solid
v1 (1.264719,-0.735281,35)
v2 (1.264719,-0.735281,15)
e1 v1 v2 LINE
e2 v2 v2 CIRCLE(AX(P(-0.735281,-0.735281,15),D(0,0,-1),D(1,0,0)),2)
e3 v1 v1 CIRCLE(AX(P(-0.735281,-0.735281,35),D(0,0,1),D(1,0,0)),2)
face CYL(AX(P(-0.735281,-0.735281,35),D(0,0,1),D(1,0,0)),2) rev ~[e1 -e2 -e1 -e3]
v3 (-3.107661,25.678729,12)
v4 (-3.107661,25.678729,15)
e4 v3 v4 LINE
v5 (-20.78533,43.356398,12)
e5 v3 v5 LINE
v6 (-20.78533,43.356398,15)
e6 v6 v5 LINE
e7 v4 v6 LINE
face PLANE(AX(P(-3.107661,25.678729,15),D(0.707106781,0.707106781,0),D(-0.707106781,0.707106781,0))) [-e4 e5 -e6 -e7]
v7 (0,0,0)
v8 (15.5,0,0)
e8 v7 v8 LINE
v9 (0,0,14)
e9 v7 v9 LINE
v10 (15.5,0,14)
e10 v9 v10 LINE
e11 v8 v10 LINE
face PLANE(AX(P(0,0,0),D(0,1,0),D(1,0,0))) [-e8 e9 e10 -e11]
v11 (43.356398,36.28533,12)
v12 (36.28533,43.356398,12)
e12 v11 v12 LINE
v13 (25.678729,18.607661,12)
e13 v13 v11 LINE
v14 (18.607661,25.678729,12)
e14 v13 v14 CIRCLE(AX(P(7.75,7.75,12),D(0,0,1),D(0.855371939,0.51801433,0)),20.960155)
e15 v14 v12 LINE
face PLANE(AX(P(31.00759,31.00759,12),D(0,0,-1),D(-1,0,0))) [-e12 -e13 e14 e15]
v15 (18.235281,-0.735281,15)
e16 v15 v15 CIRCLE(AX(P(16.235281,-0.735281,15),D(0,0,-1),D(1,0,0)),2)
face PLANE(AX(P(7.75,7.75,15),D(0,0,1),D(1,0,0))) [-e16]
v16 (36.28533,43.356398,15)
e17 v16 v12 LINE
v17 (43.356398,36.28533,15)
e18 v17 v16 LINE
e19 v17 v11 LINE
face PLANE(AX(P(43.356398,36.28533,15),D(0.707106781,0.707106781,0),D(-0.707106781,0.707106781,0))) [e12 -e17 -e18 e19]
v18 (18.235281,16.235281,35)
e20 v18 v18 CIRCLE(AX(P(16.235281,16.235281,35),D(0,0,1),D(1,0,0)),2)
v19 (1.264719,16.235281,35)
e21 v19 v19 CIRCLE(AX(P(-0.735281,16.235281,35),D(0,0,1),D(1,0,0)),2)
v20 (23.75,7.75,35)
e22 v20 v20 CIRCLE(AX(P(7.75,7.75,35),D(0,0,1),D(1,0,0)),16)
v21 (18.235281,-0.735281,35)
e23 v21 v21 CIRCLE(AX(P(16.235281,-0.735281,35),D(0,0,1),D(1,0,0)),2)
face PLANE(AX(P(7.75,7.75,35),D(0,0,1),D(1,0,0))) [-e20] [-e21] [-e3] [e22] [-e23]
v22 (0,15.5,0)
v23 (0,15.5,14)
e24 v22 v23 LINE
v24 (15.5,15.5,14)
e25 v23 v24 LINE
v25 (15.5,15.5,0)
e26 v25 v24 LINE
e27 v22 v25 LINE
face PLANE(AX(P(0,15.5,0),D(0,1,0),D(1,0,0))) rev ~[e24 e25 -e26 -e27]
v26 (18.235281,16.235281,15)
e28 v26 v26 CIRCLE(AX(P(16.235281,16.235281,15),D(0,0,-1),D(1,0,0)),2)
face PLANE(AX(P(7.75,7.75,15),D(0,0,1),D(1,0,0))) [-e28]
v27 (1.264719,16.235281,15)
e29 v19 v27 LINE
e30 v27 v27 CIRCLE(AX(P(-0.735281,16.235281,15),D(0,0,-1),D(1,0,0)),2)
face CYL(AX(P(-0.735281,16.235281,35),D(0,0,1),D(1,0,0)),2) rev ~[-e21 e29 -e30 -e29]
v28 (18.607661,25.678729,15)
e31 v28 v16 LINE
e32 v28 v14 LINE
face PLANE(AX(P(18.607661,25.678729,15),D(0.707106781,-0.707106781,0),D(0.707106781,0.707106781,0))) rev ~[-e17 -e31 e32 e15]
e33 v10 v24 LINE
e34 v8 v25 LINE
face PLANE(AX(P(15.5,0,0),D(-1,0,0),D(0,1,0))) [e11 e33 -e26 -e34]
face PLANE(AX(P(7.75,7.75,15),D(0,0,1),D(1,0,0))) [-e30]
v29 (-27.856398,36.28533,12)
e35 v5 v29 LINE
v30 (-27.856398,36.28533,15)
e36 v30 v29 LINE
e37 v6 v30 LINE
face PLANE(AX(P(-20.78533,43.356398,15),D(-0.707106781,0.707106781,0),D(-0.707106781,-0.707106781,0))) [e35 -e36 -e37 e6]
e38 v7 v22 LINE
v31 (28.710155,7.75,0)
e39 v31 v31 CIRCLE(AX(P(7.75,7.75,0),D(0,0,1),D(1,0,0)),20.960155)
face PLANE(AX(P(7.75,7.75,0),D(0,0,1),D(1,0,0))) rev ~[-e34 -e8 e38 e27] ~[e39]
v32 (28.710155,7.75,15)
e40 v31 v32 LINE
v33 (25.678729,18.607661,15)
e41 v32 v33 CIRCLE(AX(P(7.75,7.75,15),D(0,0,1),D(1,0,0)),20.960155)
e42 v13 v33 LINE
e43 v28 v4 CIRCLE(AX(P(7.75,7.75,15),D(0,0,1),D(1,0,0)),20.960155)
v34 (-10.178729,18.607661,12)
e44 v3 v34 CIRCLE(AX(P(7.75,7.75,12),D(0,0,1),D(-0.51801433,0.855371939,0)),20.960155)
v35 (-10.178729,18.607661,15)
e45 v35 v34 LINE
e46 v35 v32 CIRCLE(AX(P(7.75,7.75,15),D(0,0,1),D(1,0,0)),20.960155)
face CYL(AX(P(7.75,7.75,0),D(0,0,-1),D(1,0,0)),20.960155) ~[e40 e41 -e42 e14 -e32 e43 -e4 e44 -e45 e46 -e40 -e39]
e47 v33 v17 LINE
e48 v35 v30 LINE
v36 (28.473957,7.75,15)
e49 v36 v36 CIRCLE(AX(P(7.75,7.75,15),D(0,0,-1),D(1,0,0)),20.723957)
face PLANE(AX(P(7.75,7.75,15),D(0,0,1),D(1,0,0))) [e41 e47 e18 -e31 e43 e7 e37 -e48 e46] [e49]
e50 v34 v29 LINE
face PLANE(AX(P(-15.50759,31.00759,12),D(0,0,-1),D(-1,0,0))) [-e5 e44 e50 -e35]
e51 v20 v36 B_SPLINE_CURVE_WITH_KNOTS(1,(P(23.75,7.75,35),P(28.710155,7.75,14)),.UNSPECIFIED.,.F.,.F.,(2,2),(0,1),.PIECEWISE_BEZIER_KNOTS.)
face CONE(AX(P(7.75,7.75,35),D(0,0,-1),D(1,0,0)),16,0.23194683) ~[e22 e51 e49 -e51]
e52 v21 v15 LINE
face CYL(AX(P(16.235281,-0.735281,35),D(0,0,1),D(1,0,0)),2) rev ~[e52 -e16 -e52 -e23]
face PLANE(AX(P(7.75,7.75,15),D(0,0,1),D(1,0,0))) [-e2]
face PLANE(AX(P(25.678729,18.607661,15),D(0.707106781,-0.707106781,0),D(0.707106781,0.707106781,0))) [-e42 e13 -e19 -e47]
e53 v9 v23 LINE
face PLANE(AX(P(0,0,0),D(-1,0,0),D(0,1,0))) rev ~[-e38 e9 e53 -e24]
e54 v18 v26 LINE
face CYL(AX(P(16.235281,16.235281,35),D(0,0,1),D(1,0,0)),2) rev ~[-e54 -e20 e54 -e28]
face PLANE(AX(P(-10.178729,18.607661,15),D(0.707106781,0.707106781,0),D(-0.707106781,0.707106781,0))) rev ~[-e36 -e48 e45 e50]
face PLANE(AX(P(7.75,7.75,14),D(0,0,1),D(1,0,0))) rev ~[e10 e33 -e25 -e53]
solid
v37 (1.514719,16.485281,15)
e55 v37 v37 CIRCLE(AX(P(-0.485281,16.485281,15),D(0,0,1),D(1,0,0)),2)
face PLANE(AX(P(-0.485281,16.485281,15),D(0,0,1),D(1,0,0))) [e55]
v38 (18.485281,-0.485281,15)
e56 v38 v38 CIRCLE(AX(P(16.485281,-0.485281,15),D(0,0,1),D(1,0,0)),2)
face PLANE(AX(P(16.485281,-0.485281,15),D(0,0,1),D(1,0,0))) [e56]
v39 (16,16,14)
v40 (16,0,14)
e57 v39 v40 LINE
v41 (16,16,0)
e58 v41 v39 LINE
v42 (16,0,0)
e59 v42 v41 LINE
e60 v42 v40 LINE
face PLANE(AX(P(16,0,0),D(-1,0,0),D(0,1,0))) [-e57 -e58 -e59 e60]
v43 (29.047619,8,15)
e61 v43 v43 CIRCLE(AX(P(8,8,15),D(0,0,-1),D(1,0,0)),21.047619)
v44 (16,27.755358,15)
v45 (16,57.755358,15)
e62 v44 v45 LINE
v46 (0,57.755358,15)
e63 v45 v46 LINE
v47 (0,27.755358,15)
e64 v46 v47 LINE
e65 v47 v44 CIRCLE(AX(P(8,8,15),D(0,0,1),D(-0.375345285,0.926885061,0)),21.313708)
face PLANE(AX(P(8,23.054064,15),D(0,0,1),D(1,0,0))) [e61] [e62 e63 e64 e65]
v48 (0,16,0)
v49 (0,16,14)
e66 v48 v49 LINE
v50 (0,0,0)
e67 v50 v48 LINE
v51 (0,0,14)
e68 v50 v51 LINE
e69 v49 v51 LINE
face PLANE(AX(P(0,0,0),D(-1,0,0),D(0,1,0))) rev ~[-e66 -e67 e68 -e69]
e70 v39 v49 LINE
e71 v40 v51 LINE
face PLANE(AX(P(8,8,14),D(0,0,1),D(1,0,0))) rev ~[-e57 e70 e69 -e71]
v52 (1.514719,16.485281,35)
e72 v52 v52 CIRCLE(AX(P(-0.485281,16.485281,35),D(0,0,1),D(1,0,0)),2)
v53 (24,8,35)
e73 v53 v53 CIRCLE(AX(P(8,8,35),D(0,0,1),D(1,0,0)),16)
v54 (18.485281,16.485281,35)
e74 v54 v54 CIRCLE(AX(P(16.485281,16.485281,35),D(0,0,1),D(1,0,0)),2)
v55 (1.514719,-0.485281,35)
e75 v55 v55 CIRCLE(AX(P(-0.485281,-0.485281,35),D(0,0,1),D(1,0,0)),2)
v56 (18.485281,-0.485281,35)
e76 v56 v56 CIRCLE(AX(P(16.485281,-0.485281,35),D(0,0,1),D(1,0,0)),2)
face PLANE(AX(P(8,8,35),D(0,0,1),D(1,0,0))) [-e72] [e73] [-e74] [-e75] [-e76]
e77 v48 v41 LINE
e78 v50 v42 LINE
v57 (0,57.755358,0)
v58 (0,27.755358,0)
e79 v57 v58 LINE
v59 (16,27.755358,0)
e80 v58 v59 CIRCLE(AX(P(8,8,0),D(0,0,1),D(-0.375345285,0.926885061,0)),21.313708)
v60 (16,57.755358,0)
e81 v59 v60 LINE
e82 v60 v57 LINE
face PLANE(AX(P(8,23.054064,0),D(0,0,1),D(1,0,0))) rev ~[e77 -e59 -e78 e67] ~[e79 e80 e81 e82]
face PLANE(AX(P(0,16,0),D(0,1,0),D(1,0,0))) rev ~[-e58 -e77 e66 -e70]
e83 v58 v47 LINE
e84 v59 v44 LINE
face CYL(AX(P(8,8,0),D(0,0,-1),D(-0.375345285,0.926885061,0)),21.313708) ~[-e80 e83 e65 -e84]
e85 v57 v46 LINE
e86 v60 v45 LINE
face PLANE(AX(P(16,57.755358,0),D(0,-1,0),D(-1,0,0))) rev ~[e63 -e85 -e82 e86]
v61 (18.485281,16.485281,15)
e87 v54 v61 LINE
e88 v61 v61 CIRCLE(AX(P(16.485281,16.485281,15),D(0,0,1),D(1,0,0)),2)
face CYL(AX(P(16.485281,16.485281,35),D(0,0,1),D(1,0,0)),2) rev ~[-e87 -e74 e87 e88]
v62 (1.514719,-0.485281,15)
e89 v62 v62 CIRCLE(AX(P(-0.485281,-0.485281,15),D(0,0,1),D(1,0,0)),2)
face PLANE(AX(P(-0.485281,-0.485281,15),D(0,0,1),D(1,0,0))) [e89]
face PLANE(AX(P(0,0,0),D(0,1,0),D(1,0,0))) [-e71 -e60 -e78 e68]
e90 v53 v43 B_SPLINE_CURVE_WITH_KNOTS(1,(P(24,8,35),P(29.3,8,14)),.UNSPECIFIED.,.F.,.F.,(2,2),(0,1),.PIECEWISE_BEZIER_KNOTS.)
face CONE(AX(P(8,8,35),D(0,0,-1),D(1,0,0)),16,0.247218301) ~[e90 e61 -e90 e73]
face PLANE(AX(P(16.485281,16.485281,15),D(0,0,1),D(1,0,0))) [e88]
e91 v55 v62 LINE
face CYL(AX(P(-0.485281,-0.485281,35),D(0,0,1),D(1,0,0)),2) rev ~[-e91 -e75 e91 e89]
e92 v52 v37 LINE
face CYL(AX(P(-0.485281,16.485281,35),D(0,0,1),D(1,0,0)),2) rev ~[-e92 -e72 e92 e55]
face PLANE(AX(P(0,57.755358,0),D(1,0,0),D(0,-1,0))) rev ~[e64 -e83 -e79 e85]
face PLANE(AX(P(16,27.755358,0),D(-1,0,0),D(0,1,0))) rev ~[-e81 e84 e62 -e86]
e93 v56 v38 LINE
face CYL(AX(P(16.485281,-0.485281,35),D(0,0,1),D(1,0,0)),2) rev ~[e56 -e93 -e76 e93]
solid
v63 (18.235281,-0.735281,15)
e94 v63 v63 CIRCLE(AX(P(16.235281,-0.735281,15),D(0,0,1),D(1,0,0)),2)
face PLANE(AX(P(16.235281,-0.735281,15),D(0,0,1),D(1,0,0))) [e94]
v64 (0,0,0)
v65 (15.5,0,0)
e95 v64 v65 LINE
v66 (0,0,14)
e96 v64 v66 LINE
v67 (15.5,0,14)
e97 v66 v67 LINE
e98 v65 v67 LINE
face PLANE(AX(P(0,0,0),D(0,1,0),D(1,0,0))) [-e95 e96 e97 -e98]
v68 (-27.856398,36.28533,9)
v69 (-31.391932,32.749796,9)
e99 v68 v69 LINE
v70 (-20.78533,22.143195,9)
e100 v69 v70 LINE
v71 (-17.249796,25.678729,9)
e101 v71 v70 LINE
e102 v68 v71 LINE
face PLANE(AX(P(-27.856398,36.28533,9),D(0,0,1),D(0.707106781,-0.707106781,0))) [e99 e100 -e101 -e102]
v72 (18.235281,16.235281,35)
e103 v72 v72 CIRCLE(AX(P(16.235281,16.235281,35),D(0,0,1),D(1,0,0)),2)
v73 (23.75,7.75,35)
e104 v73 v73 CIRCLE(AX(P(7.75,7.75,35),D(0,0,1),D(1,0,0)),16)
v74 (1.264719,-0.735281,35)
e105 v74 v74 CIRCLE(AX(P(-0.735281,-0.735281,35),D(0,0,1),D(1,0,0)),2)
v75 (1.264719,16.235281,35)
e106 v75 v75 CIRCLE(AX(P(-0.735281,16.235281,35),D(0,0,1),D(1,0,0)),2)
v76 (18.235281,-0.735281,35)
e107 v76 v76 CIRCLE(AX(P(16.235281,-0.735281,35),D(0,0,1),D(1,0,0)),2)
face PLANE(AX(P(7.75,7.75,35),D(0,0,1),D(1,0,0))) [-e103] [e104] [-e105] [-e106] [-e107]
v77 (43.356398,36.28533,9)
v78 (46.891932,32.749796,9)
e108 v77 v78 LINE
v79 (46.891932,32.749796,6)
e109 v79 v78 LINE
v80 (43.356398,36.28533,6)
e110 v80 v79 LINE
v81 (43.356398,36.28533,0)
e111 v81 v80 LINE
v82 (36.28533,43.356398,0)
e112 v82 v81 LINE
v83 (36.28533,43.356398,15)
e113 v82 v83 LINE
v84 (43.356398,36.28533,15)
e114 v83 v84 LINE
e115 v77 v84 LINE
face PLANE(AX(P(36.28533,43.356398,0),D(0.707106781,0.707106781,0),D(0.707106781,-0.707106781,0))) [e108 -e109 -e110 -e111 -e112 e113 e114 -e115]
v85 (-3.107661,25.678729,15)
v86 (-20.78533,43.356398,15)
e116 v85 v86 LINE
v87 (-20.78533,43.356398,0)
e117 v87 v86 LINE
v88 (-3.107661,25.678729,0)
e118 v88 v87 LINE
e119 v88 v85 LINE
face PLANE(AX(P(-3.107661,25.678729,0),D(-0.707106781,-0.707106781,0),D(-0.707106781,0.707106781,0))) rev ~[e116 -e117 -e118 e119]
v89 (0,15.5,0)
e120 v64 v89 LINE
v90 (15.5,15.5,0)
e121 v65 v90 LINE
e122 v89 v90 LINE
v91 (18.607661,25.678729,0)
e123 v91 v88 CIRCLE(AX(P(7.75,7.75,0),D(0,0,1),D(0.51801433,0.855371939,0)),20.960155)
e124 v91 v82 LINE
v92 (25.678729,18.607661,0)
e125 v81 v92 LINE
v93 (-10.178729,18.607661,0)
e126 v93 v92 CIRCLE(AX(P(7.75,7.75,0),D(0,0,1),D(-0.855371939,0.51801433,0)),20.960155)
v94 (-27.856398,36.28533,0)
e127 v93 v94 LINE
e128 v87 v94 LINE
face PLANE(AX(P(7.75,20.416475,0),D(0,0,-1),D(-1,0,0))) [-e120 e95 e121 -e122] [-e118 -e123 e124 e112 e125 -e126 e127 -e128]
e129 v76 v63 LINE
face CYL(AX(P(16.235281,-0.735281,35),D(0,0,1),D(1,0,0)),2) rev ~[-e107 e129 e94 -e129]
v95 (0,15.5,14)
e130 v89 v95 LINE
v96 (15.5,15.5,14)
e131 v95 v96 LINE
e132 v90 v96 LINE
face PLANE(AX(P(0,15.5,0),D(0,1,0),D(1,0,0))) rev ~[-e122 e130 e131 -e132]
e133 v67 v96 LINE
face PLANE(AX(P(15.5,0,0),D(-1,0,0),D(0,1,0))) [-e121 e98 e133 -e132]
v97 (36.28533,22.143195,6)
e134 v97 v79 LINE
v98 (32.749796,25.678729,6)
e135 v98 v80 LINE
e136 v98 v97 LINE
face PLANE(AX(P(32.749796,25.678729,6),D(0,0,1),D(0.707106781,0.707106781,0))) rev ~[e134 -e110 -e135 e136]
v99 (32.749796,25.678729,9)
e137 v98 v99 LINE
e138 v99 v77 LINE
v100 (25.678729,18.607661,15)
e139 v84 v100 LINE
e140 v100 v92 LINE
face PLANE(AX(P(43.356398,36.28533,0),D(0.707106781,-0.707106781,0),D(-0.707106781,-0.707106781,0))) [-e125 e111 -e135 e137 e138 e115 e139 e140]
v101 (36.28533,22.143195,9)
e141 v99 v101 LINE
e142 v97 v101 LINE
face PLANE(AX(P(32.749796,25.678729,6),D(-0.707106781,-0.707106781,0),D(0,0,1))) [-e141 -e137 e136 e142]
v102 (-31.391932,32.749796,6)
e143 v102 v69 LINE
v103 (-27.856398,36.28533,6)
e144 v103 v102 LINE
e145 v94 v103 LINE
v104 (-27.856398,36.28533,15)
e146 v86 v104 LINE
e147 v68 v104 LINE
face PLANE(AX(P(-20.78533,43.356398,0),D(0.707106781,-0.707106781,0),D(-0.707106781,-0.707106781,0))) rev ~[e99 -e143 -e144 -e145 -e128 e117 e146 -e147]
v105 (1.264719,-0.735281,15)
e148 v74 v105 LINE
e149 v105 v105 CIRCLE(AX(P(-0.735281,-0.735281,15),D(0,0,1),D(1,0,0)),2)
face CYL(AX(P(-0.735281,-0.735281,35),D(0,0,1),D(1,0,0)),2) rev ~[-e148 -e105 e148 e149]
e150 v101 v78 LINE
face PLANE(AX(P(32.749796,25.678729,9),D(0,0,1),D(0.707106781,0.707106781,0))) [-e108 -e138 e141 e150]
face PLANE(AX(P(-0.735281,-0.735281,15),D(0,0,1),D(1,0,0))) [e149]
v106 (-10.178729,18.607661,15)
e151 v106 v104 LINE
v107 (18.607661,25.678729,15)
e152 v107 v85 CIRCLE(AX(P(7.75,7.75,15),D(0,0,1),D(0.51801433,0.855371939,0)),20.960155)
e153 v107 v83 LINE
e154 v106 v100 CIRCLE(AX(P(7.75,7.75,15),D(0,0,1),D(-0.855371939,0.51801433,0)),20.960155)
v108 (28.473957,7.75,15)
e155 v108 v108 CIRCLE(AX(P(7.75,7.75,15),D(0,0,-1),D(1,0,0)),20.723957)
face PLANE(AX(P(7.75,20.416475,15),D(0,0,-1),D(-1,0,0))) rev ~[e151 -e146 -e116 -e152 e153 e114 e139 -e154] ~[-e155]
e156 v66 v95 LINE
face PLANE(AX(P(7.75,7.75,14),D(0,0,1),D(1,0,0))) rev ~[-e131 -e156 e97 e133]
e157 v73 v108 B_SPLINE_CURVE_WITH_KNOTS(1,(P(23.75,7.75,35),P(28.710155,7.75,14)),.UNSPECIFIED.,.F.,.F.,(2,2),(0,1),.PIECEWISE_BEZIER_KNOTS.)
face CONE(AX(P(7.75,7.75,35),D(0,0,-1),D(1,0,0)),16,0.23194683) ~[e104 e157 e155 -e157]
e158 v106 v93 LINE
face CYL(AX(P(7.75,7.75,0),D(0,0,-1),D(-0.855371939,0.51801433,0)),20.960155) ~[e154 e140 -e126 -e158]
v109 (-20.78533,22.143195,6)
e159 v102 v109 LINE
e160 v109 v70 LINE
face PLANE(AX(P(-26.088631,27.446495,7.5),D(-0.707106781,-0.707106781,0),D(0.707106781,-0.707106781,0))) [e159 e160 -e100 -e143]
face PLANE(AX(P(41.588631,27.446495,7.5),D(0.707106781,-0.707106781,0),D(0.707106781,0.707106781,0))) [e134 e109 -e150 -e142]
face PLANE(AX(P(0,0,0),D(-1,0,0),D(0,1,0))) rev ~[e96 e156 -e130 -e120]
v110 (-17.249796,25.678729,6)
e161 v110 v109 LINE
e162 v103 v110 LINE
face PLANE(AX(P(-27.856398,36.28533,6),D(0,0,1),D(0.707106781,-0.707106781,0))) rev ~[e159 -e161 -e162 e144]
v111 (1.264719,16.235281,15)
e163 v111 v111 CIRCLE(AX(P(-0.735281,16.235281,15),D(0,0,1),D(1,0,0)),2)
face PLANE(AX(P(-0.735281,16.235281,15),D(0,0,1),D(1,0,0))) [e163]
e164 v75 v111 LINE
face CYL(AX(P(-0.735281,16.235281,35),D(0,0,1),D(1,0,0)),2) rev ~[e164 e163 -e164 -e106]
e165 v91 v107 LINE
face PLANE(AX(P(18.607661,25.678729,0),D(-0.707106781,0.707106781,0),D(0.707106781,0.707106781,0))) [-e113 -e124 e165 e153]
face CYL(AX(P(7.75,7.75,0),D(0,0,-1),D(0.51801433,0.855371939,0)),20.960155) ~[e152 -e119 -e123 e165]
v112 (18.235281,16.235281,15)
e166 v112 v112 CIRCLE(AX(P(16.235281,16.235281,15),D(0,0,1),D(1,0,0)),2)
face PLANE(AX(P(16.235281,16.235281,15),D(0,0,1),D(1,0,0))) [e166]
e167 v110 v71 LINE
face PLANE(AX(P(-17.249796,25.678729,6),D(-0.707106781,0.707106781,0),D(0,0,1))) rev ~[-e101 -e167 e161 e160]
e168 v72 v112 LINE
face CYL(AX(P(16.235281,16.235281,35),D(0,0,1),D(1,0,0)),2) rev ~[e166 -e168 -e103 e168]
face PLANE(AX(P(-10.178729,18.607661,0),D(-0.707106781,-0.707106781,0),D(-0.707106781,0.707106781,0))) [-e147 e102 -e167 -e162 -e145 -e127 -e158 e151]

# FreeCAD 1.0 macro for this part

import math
import FreeCAD as App
import Part
import Sketcher

V = App.Vector

doc = App.newDocument("Part")
params = doc.addObject("Spreadsheet::Sheet", "Params")
for row, (alias, value) in enumerate([
    ("sketch1_diameter", "4 mm"),
    ("pad1_length", "20 mm"),
    ("sketch2_width", "16 mm"),
    ("sketch2_height", "30 mm"),
    ("pad2_length", "15 mm"),
    ("sketch3_diameter", "32 mm"),
    ("sketch4_diameter", "42.6 mm"),
    ("sketch5_width", "15 mm"),
    ("sketch5_height", "3 mm"),
    ("pad3_length", "5 mm"),
    ("sketch6_width", "15 mm"),
    ("sketch6_height", "3 mm"),
    ("pad4_length", "5 mm"),
    ("sketch7_diameter", "4 mm"),
    ("pad5_length", "20 mm"),
    ("sketch8_diameter", "32 mm"),
    ("sketch10_length", "10 mm"),
    ("sketch10_length2", "25 mm"),
    ("sketch10_width", "15.5 mm"),
    ("pad6_length", "15 mm"),
    ("sketch11_length", "25 mm"),
    ("sketch11_length2", "10 mm"),
    ("pad7_length", "3 mm"),
    ("sketch12_diameter", "4 mm"),
    ("pad8_length", "20 mm"),
    ("sketch13_diameter", "32 mm"),
    ("sketch15_width", "15.5 mm"),
    ("pad9_length", "15 mm"),
], start=1):
    params.set(f"A{row}", alias)
    params.set(f"B{row}", "=" + value)
    params.setAlias(f"B{row}", alias)

body = doc.addObject("PartDesign::Body", "Body")
body.AllowCompound = True

# Sketch on XY plane
sketch1 = body.newObject("Sketcher::SketchObject", "Sketch")
sketch1.AttachmentSupport = (doc.getObject("XY_Plane"), [""])
sketch1.MapMode = "FlatFace"
sketch1.AttachmentOffset = App.Placement(V(0, 0, 35), App.Rotation())
sketch1.addGeometry([
    Part.Circle(V(16.5, 16.5, 0), V(0, 0, 1), 2),
    Part.Circle(V(-0.5, 16.5, 0), V(0, 0, 1), 2),
    Part.Circle(V(-0.5, -0.5, 0), V(0, 0, 1), 2),
    Part.Circle(V(16.5, -0.5, 0), V(0, 0, 1), 2),
], False)
sketch1.addConstraint([
    Sketcher.Constraint("Equal", 0, 1),
    Sketcher.Constraint("Equal", 1, 2),
    Sketcher.Constraint("Equal", 2, 3),
    Sketcher.Constraint("Horizontal", 0, 3, 1, 3),
    Sketcher.Constraint("Horizontal", 2, 3, 3, 3),
    Sketcher.Constraint("Vertical", 1, 3, 2, 3),
    Sketcher.Constraint("Vertical", 0, 3, 3, 3),
    Sketcher.Constraint("Diameter", 0, 4.0),
    Sketcher.Constraint("DistanceX", -1, 1, 0, 3, 16.485281),
    Sketcher.Constraint("DistanceY", -1, 1, 0, 3, 16.485281),
    Sketcher.Constraint("DistanceX", 1, 3, -1, 1, 0.485281),
    Sketcher.Constraint("DistanceY", 2, 3, -1, 1, 0.485281),
])
sketch1.setExpression("Constraints[7]", "Params.sketch1_diameter")
pad1 = body.newObject("PartDesign::Pad", "Pad")
pad1.Profile = sketch1
pad1.setExpression("Length", "Params.pad1_length")
pad1.Reversed = True
body2 = doc.addObject("PartDesign::Body", "Body001")

# Sketch on XY plane
sketch2 = body2.newObject("Sketcher::SketchObject", "Sketch001")
sketch2.AttachmentSupport = (doc.getObject("XY_Plane001"), [""])
sketch2.MapMode = "FlatFace"
sketch2.addGeometry([
    Part.ArcOfCircle(Part.Circle(V(8, 8, 0), V(0, 0, 1), 21), math.radians(112), math.radians(428)),  # 0
    Part.LineSegment(V(16, 28, 0), V(16, 58, 0)),  # 1
    Part.LineSegment(V(16, 58, 0), V(0, 58, 0)),  # 2
    Part.LineSegment(V(0, 58, 0), V(0, 28, 0)),  # 3
    Part.LineSegment(V(16, 0, 0), V(0, 0, 0)),  # 4
    Part.LineSegment(V(0, 0, 0), V(0, 16, 0)),  # 5
    Part.LineSegment(V(0, 16, 0), V(16, 16, 0)),  # 6
    Part.LineSegment(V(16, 16, 0), V(16, 0, 0)),  # 7
], False)
sketch2.addConstraint([
    Sketcher.Constraint("Coincident", 0, 2, 1, 1),
    Sketcher.Constraint("Coincident", 1, 2, 2, 1),
    Sketcher.Constraint("Coincident", 2, 2, 3, 1),
    Sketcher.Constraint("Coincident", 3, 2, 0, 1),
    Sketcher.Constraint("Coincident", 4, 2, 5, 1),
    Sketcher.Constraint("Coincident", 5, 2, 6, 1),
    Sketcher.Constraint("Coincident", 6, 2, 7, 1),
    Sketcher.Constraint("Coincident", 7, 2, 4, 1),
    Sketcher.Constraint("Vertical", 1),
    Sketcher.Constraint("Horizontal", 2),
    Sketcher.Constraint("Vertical", 3),
    Sketcher.Constraint("Horizontal", 4),
    Sketcher.Constraint("Vertical", 5),
    Sketcher.Constraint("Horizontal", 6),
    Sketcher.Constraint("Vertical", 7),
    Sketcher.Constraint("Coincident", 4, 2, -1, 1),
    Sketcher.Constraint("PointOnObject", 2, 2, -2),
    Sketcher.Constraint("Horizontal", 0, 2, 3, 2),
    Sketcher.Constraint("Vertical", 1, 2, 6, 2),
    Sketcher.Constraint("Equal", 6, 5),
    Sketcher.Constraint("DistanceX", 2, 2, 2, 1, 16.0),
    Sketcher.Constraint("DistanceY", 1, 1, 1, 2, 30.0),
    Sketcher.Constraint("DistanceY", -1, 1, 0, 3, 8.0),
    Sketcher.Constraint("Radius", 0, 21.313708),
])
sketch2.setExpression("Constraints[20]", "Params.sketch2_width")
sketch2.setExpression("Constraints[21]", "Params.sketch2_height")
pad2 = body2.newObject("PartDesign::Pad", "Pad001")
pad2.Profile = sketch2
pad2.setExpression("Length", "Params.pad2_length")
body3 = doc.addObject("PartDesign::Body", "Body002")

# Sketch on XY plane
sketch3 = body3.newObject("Sketcher::SketchObject", "Sketch002")
sketch3.AttachmentSupport = (doc.getObject("XY_Plane002"), [""])
sketch3.MapMode = "FlatFace"
sketch3.AttachmentOffset = App.Placement(V(0, 0, 35), App.Rotation())
sketch3.addGeometry(Part.Circle(V(8, 8, 0), V(0, 0, 1), 16), False)
sketch3.addConstraint([
    Sketcher.Constraint("Diameter", 0, 32.0),
    Sketcher.Constraint("DistanceX", -1, 1, 0, 3, 8.0),
    Sketcher.Constraint("DistanceY", -1, 1, 0, 3, 8.0),
])
sketch3.setExpression("Constraints[0]", "Params.sketch3_diameter")

# Sketch on XY plane
sketch4 = body3.newObject("Sketcher::SketchObject", "Sketch003")
sketch4.AttachmentSupport = (doc.getObject("XY_Plane002"), [""])
sketch4.MapMode = "FlatFace"
sketch4.AttachmentOffset = App.Placement(V(0, 0, 14), App.Rotation())
sketch4.addGeometry(Part.Circle(V(8, 8, 0), V(0, 0, 1), 21), False)
sketch4.addConstraint([
    Sketcher.Constraint("Diameter", 0, 42.6),
    Sketcher.Constraint("DistanceX", -1, 1, 0, 3, 8.0),
    Sketcher.Constraint("DistanceY", -1, 1, 0, 3, 8.0),
])
sketch4.setExpression("Constraints[0]", "Params.sketch4_diameter")

additiveloft = body3.newObject("PartDesign::AdditiveLoft", "AdditiveLoft")
additiveloft.Profile = sketch3
additiveloft.Sections = [sketch4]
doc.recompute()

boolean = body3.newObject("PartDesign::Boolean", "Boolean")
boolean.Type = "Fuse"
boolean.addObjects([body2])
doc.recompute()

boolean2 = body3.newObject("PartDesign::Boolean", "Boolean001")
boolean2.Type = "Cut"
boolean2.addObjects([body])
body4 = doc.addObject("PartDesign::Body", "Body003")

# Sketch on XY plane
sketch5 = body4.newObject("Sketcher::SketchObject", "Sketch004")
sketch5.AttachmentSupport = (doc.getObject("XY_Plane003"), [""])
sketch5.MapMode = "FlatFace"
sketch5.addGeometry([
    Part.LineSegment(V(41.3, 9, 0), V(41.3, 6, 0)),
    Part.LineSegment(V(41.3, 6, 0), V(56.3, 6, 0)),
    Part.LineSegment(V(56.3, 6, 0), V(56.3, 9, 0)),
    Part.LineSegment(V(56.3, 9, 0), V(41.3, 9, 0)),
], False)
sketch5.addConstraint([
    Sketcher.Constraint("Coincident", 0, 2, 1, 1),
    Sketcher.Constraint("Coincident", 1, 2, 2, 1),
    Sketcher.Constraint("Coincident", 2, 2, 3, 1),
    Sketcher.Constraint("Coincident", 3, 2, 0, 1),
    Sketcher.Constraint("Vertical", 0),
    Sketcher.Constraint("Horizontal", 1),
    Sketcher.Constraint("Vertical", 2),
    Sketcher.Constraint("Horizontal", 3),
    Sketcher.Constraint("DistanceX", 1, 1, 1, 2, 15.0),
    Sketcher.Constraint("DistanceY", 0, 2, 0, 1, 3.0),
    Sketcher.Constraint("DistanceY", -1, 1, 0, 2, 6.0),
    Sketcher.Constraint("DistanceX", -1, 1, 0, 2, 41.315206),
])
sketch5.setExpression("Constraints[8]", "Params.sketch5_width")
sketch5.setExpression("Constraints[9]", "Params.sketch5_height")
pad3 = body4.newObject("PartDesign::Pad", "Pad002")
pad3.Profile = sketch5
pad3.setExpression("Length", "Params.pad3_length")
body5 = doc.addObject("PartDesign::Body", "Body004")
doc.recompute()

body4.Placement = App.Placement(V(0, 0, 0), App.Rotation(V(1, 0, 0), 90))
boolean3 = body5.newObject("PartDesign::Boolean", "Boolean002")
boolean3.Type = "Fuse"
boolean3.addObjects([body4])
body6 = doc.addObject("PartDesign::Body", "Body005")
doc.recompute()

body5.Placement = App.Placement(V(3.535534, -3.535534, 0), App.Rotation(V(0, 0, 1), 45))
boolean4 = body6.newObject("PartDesign::Boolean", "Boolean003")
boolean4.Type = "Fuse"
boolean4.addObjects([body5])
body7 = doc.addObject("PartDesign::Body", "Body006")

# Sketch on XY plane
sketch6 = body7.newObject("Sketcher::SketchObject", "Sketch005")
sketch6.AttachmentSupport = (doc.getObject("XY_Plane006"), [""])
sketch6.MapMode = "FlatFace"
sketch6.addGeometry([
    Part.LineSegment(V(-45.4, 9, 0), V(-45.4, 6, 0)),
    Part.LineSegment(V(-45.4, 6, 0), V(-30.4, 6, 0)),
    Part.LineSegment(V(-30.4, 6, 0), V(-30.4, 9, 0)),
    Part.LineSegment(V(-30.4, 9, 0), V(-45.4, 9, 0)),
], False)
sketch6.addConstraint([
    Sketcher.Constraint("Coincident", 0, 2, 1, 1),
    Sketcher.Constraint("Coincident", 1, 2, 2, 1),
    Sketcher.Constraint("Coincident", 2, 2, 3, 1),
    Sketcher.Constraint("Coincident", 3, 2, 0, 1),
    Sketcher.Constraint("Vertical", 0),
    Sketcher.Constraint("Horizontal", 1),
    Sketcher.Constraint("Vertical", 2),
    Sketcher.Constraint("Horizontal", 3),
    Sketcher.Constraint("DistanceX", 1, 1, 1, 2, 15.0),
    Sketcher.Constraint("DistanceY", 0, 2, 0, 1, 3.0),
    Sketcher.Constraint("DistanceY", -1, 1, 0, 2, 6.0),
    Sketcher.Constraint("DistanceX", 0, 2, -1, 1, 45.355051),
])
sketch6.setExpression("Constraints[8]", "Params.sketch6_width")
sketch6.setExpression("Constraints[9]", "Params.sketch6_height")
pad4 = body7.newObject("PartDesign::Pad", "Pad003")
pad4.Profile = sketch6
pad4.setExpression("Length", "Params.pad4_length")
body8 = doc.addObject("PartDesign::Body", "Body007")
doc.recompute()

body7.Placement = App.Placement(V(0, 0, 0), App.Rotation(V(1, 0, 0), 90))
boolean5 = body8.newObject("PartDesign::Boolean", "Boolean004")
boolean5.Type = "Fuse"
boolean5.addObjects([body7])
body9 = doc.addObject("PartDesign::Body", "Body008")
doc.recompute()

body8.Placement = App.Placement(V(4.214466, 4.214466, 0), App.Rotation(V(0, 0, 1), 315))
boolean6 = body9.newObject("PartDesign::Boolean", "Boolean005")
boolean6.Type = "Fuse"
boolean6.addObjects([body8])
body10 = doc.addObject("PartDesign::Body", "Body009")
body10.AllowCompound = True

# Sketch on XY plane
sketch7 = body10.newObject("Sketcher::SketchObject", "Sketch006")
sketch7.AttachmentSupport = (doc.getObject("XY_Plane009"), [""])
sketch7.MapMode = "FlatFace"
sketch7.AttachmentOffset = App.Placement(V(0, 0, 35), App.Rotation())
sketch7.addGeometry([
    Part.Circle(V(16.2, 16.2, 0), V(0, 0, 1), 2),
    Part.Circle(V(-0.7, 16.2, 0), V(0, 0, 1), 2),
    Part.Circle(V(-0.7, -0.7, 0), V(0, 0, 1), 2),
    Part.Circle(V(16.2, -0.7, 0), V(0, 0, 1), 2),
], False)
sketch7.addConstraint([
    Sketcher.Constraint("Equal", 0, 1),
    Sketcher.Constraint("Equal", 1, 2),
    Sketcher.Constraint("Equal", 2, 3),
    Sketcher.Constraint("Horizontal", 0, 3, 1, 3),
    Sketcher.Constraint("Horizontal", 2, 3, 3, 3),
    Sketcher.Constraint("Vertical", 1, 3, 2, 3),
    Sketcher.Constraint("Vertical", 0, 3, 3, 3),
    Sketcher.Constraint("Diameter", 0, 4.0),
    Sketcher.Constraint("DistanceX", -1, 1, 0, 3, 16.235281),
    Sketcher.Constraint("DistanceY", -1, 1, 0, 3, 16.235281),
    Sketcher.Constraint("DistanceX", 1, 3, -1, 1, 0.735281),
    Sketcher.Constraint("DistanceY", 2, 3, -1, 1, 0.735281),
])
sketch7.setExpression("Constraints[7]", "Params.sketch7_diameter")
pad5 = body10.newObject("PartDesign::Pad", "Pad004")
pad5.Profile = sketch7
pad5.setExpression("Length", "Params.pad5_length")
pad5.Reversed = True
body11 = doc.addObject("PartDesign::Body", "Body010")

# Sketch on XY plane
sketch8 = body11.newObject("Sketcher::SketchObject", "Sketch007")
sketch8.AttachmentSupport = (doc.getObject("XY_Plane010"), [""])
sketch8.MapMode = "FlatFace"
sketch8.AttachmentOffset = App.Placement(V(0, 0, 35), App.Rotation())
sketch8.addGeometry(Part.Circle(V(8, 8, 0), V(0, 0, 1), 16), False)
sketch8.addConstraint([
    Sketcher.Constraint("Diameter", 0, 32.0),
    Sketcher.Constraint("DistanceX", -1, 1, 0, 3, 7.75),
    Sketcher.Constraint("DistanceY", -1, 1, 0, 3, 7.75),
])
sketch8.setExpression("Constraints[0]", "Params.sketch8_diameter")

# Sketch on XY plane
sketch9 = body11.newObject("Sketcher::SketchObject", "Sketch008")
sketch9.AttachmentSupport = (doc.getObject("XY_Plane010"), [""])
sketch9.MapMode = "FlatFace"
sketch9.AttachmentOffset = App.Placement(V(0, 0, 14), App.Rotation())
sketch9.addGeometry(Part.Circle(V(8, 8, 0), V(0, 0, 1), 21), False)
sketch9.addConstraint([
    Sketcher.Constraint("Diameter", 0, 41.92031),
    Sketcher.Constraint("DistanceX", -1, 1, 0, 3, 7.75),
    Sketcher.Constraint("DistanceY", -1, 1, 0, 3, 7.75),
])

additiveloft2 = body11.newObject("PartDesign::AdditiveLoft", "AdditiveLoft001")
additiveloft2.Profile = sketch8
additiveloft2.Sections = [sketch9]
body12 = doc.addObject("PartDesign::Body", "Body011")

# Sketch on XY plane
sketch10 = body12.newObject("Sketcher::SketchObject", "Sketch009")
sketch10.AttachmentSupport = (doc.getObject("XY_Plane011"), [""])
sketch10.MapMode = "FlatFace"
sketch10.addGeometry([
    Part.LineSegment(V(43, 36, 0), V(36, 43, 0)),  # 0
    Part.LineSegment(V(36, 43, 0), V(19, 26, 0)),  # 1
    Part.ArcOfCircle(Part.Circle(V(8, 8, 0), V(0, 0, 1), 21), math.radians(59), math.radians(121)),  # 2
    Part.LineSegment(V(-3, 26, 0), V(-21, 43, 0)),  # 3
    Part.LineSegment(V(-21, 43, 0), V(-28, 36, 0)),  # 4
    Part.LineSegment(V(-28, 36, 0), V(-10, 19, 0)),  # 5
    Part.ArcOfCircle(Part.Circle(V(8, 8, 0), V(0, 0, 1), 21), math.radians(149), math.radians(391)),  # 6
    Part.LineSegment(V(26, 19, 0), V(43, 36, 0)),  # 7
    Part.LineSegment(V(0, 0, 0), V(0, 16, 0)),  # 8
    Part.LineSegment(V(0, 16, 0), V(16, 16, 0)),  # 9
    Part.LineSegment(V(16, 16, 0), V(16, 0, 0)),  # 10
    Part.LineSegment(V(16, 0, 0), V(0, 0, 0)),  # 11
], False)
sketch10.addConstraint([
    Sketcher.Constraint("Coincident", 0, 2, 1, 1),
    Sketcher.Constraint("Coincident", 1, 2, 2, 1),
    Sketcher.Constraint("Coincident", 2, 2, 3, 1),
    Sketcher.Constraint("Coincident", 3, 2, 4, 1),
    Sketcher.Constraint("Coincident", 4, 2, 5, 1),
    Sketcher.Constraint("Coincident", 5, 2, 6, 1),
    Sketcher.Constraint("Coincident", 6, 2, 7, 1),
    Sketcher.Constraint("Coincident", 7, 2, 0, 1),
    Sketcher.Constraint("Coincident", 8, 2, 9, 1),
    Sketcher.Constraint("Coincident", 9, 2, 10, 1),
    Sketcher.Constraint("Coincident", 10, 2, 11, 1),
    Sketcher.Constraint("Coincident", 11, 2, 8, 1),
    Sketcher.Constraint("Vertical", 8),
    Sketcher.Constraint("Horizontal", 9),
    Sketcher.Constraint("Vertical", 10),
    Sketcher.Constraint("Horizontal", 11),
    Sketcher.Constraint("Coincident", 11, 2, -1, 1),
    Sketcher.Constraint("Coincident", 6, 3, 2, 3),
    Sketcher.Constraint("Equal", 2, 6),
    Sketcher.Constraint("Perpendicular", 0, 1),
    Sketcher.Constraint("Perpendicular", 1, 3),
    Sketcher.Constraint("Perpendicular", 3, 4),
    Sketcher.Constraint("Perpendicular", 4, 5),
    Sketcher.Constraint("Perpendicular", 5, 7),
    Sketcher.Constraint("Horizontal", 1, 2, 2, 2),
    Sketcher.Constraint("Horizontal", 0, 2, 3, 2),
    Sketcher.Constraint("Horizontal", 5, 2, 6, 2),
    Sketcher.Constraint("Horizontal", 4, 2, 7, 2),
    Sketcher.Constraint("Equal", 11, 8),
    Sketcher.Constraint("Equal", 3, 5),
    Sketcher.Constraint("Distance", 0, 10.0),
    Sketcher.Constraint("Distance", 1, 25.0),
    Sketcher.Constraint("DistanceX", 9, 1, 9, 2, 15.5),
    Sketcher.Constraint("DistanceX", -1, 1, 2, 3, 7.75),
    Sketcher.Constraint("DistanceY", -1, 1, 2, 3, 7.75),
    Sketcher.Constraint("Radius", 2, 20.960155),
])
sketch10.setExpression("Constraints[30]", "Params.sketch10_length")
sketch10.setExpression("Constraints[31]", "Params.sketch10_length2")
sketch10.setExpression("Constraints[32]", "Params.sketch10_width")
pad6 = body12.newObject("PartDesign::Pad", "Pad005")
pad6.Profile = sketch10
pad6.setExpression("Length", "Params.pad6_length")
doc.recompute()

boolean7 = body12.newObject("PartDesign::Boolean", "Boolean006")
boolean7.Type = "Fuse"
boolean7.addObjects([body11])
doc.recompute()

boolean8 = body12.newObject("PartDesign::Boolean", "Boolean007")
boolean8.Type = "Cut"
boolean8.addObjects([body10])
doc.recompute()

boolean9 = body12.newObject("PartDesign::Boolean", "Boolean008")
boolean9.Type = "Fuse"
boolean9.addObjects([body6])
doc.recompute()

boolean10 = body12.newObject("PartDesign::Boolean", "Boolean009")
boolean10.Type = "Fuse"
boolean10.addObjects([body9])
body13 = doc.addObject("PartDesign::Body", "Body012")
body13.AllowCompound = True

# Sketch on XY plane
sketch11 = body13.newObject("Sketcher::SketchObject", "Sketch010")
sketch11.AttachmentSupport = (doc.getObject("XY_Plane012"), [""])
sketch11.MapMode = "FlatFace"
sketch11.AttachmentOffset = App.Placement(V(0, 0, 15), App.Rotation())
sketch11.addGeometry([
    Part.LineSegment(V(36, 43, 0), V(19, 26, 0)),  # 0
    Part.ArcOfCircle(Part.Circle(V(8, 8, 0), V(0, 0, 1), 21), math.radians(31), math.radians(59)),  # 1
    Part.LineSegment(V(26, 19, 0), V(43, 36, 0)),  # 2
    Part.LineSegment(V(43, 36, 0), V(36, 43, 0)),  # 3
    Part.LineSegment(V(-28, 36, 0), V(-10, 19, 0)),  # 4
    Part.ArcOfCircle(Part.Circle(V(8, 8, 0), V(0, 0, 1), 21), math.radians(121), math.radians(149)),  # 5
    Part.LineSegment(V(-3, 26, 0), V(-21, 43, 0)),  # 6
    Part.LineSegment(V(-21, 43, 0), V(-28, 36, 0)),  # 7
], False)
sketch11.addConstraint([
    Sketcher.Constraint("Coincident", 0, 2, 1, 2),
    Sketcher.Constraint("Coincident", 1, 1, 2, 1),
    Sketcher.Constraint("Coincident", 2, 2, 3, 1),
    Sketcher.Constraint("Coincident", 3, 2, 0, 1),
    Sketcher.Constraint("Coincident", 4, 2, 5, 2),
    Sketcher.Constraint("Coincident", 5, 1, 6, 1),
    Sketcher.Constraint("Coincident", 6, 2, 7, 1),
    Sketcher.Constraint("Coincident", 7, 2, 4, 1),
    Sketcher.Constraint("Coincident", 5, 3, 1, 3),
    Sketcher.Constraint("Equal", 1, 5),
    Sketcher.Constraint("Parallel", 0, 2),
    Sketcher.Constraint("Perpendicular", 2, 3),
    Sketcher.Constraint("Parallel", 3, 4),
    Sketcher.Constraint("Parallel", 4, 6),
    Sketcher.Constraint("Perpendicular", 6, 7),
    Sketcher.Constraint("Horizontal", 1, 1, 4, 2),
    Sketcher.Constraint("Horizontal", 0, 2, 5, 1),
    Sketcher.Constraint("Horizontal", 3, 2, 6, 2),
    Sketcher.Constraint("Horizontal", 2, 2, 7, 2),
    Sketcher.Constraint("Equal", 0, 2),
    Sketcher.Constraint("Distance", 0, 25.0),
    Sketcher.Constraint("Distance", 3, 10.0),
    Sketcher.Constraint("DistanceX", -1, 1, 1, 3, 7.75),
    Sketcher.Constraint("DistanceY", -1, 1, 1, 3, 7.75),
    Sketcher.Constraint("Radius", 1, 20.960155),
])
sketch11.setExpression("Constraints[20]", "Params.sketch11_length")
sketch11.setExpression("Constraints[21]", "Params.sketch11_length2")
pad7 = body13.newObject("PartDesign::Pad", "Pad006")
pad7.Profile = sketch11
pad7.setExpression("Length", "Params.pad7_length")
pad7.Reversed = True
body14 = doc.addObject("PartDesign::Body", "Body013")
body14.AllowCompound = True

# Sketch on XY plane
sketch12 = body14.newObject("Sketcher::SketchObject", "Sketch011")
sketch12.AttachmentSupport = (doc.getObject("XY_Plane013"), [""])
sketch12.MapMode = "FlatFace"
sketch12.AttachmentOffset = App.Placement(V(0, 0, 35), App.Rotation())
sketch12.addGeometry([
    Part.Circle(V(16.2, 16.2, 0), V(0, 0, 1), 2),
    Part.Circle(V(-0.7, 16.2, 0), V(0, 0, 1), 2),
    Part.Circle(V(-0.7, -0.7, 0), V(0, 0, 1), 2),
    Part.Circle(V(16.2, -0.7, 0), V(0, 0, 1), 2),
], False)
sketch12.addConstraint([
    Sketcher.Constraint("Equal", 0, 1),
    Sketcher.Constraint("Equal", 1, 2),
    Sketcher.Constraint("Equal", 2, 3),
    Sketcher.Constraint("Horizontal", 0, 3, 1, 3),
    Sketcher.Constraint("Horizontal", 2, 3, 3, 3),
    Sketcher.Constraint("Vertical", 1, 3, 2, 3),
    Sketcher.Constraint("Vertical", 0, 3, 3, 3),
    Sketcher.Constraint("Diameter", 0, 4.0),
    Sketcher.Constraint("DistanceX", -1, 1, 0, 3, 16.235281),
    Sketcher.Constraint("DistanceY", -1, 1, 0, 3, 16.235281),
    Sketcher.Constraint("DistanceX", 1, 3, -1, 1, 0.735281),
    Sketcher.Constraint("DistanceY", 2, 3, -1, 1, 0.735281),
])
sketch12.setExpression("Constraints[7]", "Params.sketch12_diameter")
pad8 = body14.newObject("PartDesign::Pad", "Pad007")
pad8.Profile = sketch12
pad8.setExpression("Length", "Params.pad8_length")
pad8.Reversed = True
body15 = doc.addObject("PartDesign::Body", "Body014")

# Sketch on XY plane
sketch13 = body15.newObject("Sketcher::SketchObject", "Sketch012")
sketch13.AttachmentSupport = (doc.getObject("XY_Plane014"), [""])
sketch13.MapMode = "FlatFace"
sketch13.AttachmentOffset = App.Placement(V(0, 0, 35), App.Rotation())
sketch13.addGeometry(Part.Circle(V(8, 8, 0), V(0, 0, 1), 16), False)
sketch13.addConstraint([
    Sketcher.Constraint("Diameter", 0, 32.0),
    Sketcher.Constraint("DistanceX", -1, 1, 0, 3, 7.75),
    Sketcher.Constraint("DistanceY", -1, 1, 0, 3, 7.75),
])
sketch13.setExpression("Constraints[0]", "Params.sketch13_diameter")

# Sketch on XY plane
sketch14 = body15.newObject("Sketcher::SketchObject", "Sketch013")
sketch14.AttachmentSupport = (doc.getObject("XY_Plane014"), [""])
sketch14.MapMode = "FlatFace"
sketch14.AttachmentOffset = App.Placement(V(0, 0, 14), App.Rotation())
sketch14.addGeometry(Part.Circle(V(8, 8, 0), V(0, 0, 1), 21), False)
sketch14.addConstraint([
    Sketcher.Constraint("Diameter", 0, 41.92031),
    Sketcher.Constraint("DistanceX", -1, 1, 0, 3, 7.75),
    Sketcher.Constraint("DistanceY", -1, 1, 0, 3, 7.75),
])

additiveloft3 = body15.newObject("PartDesign::AdditiveLoft", "AdditiveLoft002")
additiveloft3.Profile = sketch13
additiveloft3.Sections = [sketch14]
doc.recompute()

boolean11 = body15.newObject("PartDesign::Boolean", "Boolean010")
boolean11.Type = "Cut"
boolean11.addObjects([body14])
body16 = doc.addObject("PartDesign::Body", "Body015")

# Sketch on XY plane
sketch15 = body16.newObject("Sketcher::SketchObject", "Sketch014")
sketch15.AttachmentSupport = (doc.getObject("XY_Plane015"), [""])
sketch15.MapMode = "FlatFace"
sketch15.addGeometry([
    Part.Circle(V(8, 8, 0), V(0, 0, 1), 21),  # 0
    Part.LineSegment(V(16, 0, 0), V(0, 0, 0)),  # 1
    Part.LineSegment(V(0, 0, 0), V(0, 16, 0)),  # 2
    Part.LineSegment(V(0, 16, 0), V(16, 16, 0)),  # 3
    Part.LineSegment(V(16, 16, 0), V(16, 0, 0)),  # 4
], False)
sketch15.addConstraint([
    Sketcher.Constraint("Coincident", 1, 2, 2, 1),
    Sketcher.Constraint("Coincident", 2, 2, 3, 1),
    Sketcher.Constraint("Coincident", 3, 2, 4, 1),
    Sketcher.Constraint("Coincident", 4, 2, 1, 1),
    Sketcher.Constraint("Horizontal", 1),
    Sketcher.Constraint("Vertical", 2),
    Sketcher.Constraint("Horizontal", 3),
    Sketcher.Constraint("Vertical", 4),
    Sketcher.Constraint("Coincident", 1, 2, -1, 1),
    Sketcher.Constraint("Equal", 3, 2),
    Sketcher.Constraint("DistanceX", 1, 2, 1, 1, 15.5),
    Sketcher.Constraint("Diameter", 0, 41.92031),
    Sketcher.Constraint("DistanceX", -1, 1, 0, 3, 7.75),
    Sketcher.Constraint("DistanceY", -1, 1, 0, 3, 7.75),
])
sketch15.setExpression("Constraints[10]", "Params.sketch15_width")
pad9 = body16.newObject("PartDesign::Pad", "Pad008")
pad9.Profile = sketch15
pad9.setExpression("Length", "Params.pad9_length")
doc.recompute()

boolean12 = body16.newObject("PartDesign::Boolean", "Boolean011")
boolean12.Type = "Fuse"
boolean12.addObjects([body13])
doc.recompute()

boolean13 = body16.newObject("PartDesign::Boolean", "Boolean012")
boolean13.Type = "Fuse"
boolean13.addObjects([body15])

doc.recompute()
